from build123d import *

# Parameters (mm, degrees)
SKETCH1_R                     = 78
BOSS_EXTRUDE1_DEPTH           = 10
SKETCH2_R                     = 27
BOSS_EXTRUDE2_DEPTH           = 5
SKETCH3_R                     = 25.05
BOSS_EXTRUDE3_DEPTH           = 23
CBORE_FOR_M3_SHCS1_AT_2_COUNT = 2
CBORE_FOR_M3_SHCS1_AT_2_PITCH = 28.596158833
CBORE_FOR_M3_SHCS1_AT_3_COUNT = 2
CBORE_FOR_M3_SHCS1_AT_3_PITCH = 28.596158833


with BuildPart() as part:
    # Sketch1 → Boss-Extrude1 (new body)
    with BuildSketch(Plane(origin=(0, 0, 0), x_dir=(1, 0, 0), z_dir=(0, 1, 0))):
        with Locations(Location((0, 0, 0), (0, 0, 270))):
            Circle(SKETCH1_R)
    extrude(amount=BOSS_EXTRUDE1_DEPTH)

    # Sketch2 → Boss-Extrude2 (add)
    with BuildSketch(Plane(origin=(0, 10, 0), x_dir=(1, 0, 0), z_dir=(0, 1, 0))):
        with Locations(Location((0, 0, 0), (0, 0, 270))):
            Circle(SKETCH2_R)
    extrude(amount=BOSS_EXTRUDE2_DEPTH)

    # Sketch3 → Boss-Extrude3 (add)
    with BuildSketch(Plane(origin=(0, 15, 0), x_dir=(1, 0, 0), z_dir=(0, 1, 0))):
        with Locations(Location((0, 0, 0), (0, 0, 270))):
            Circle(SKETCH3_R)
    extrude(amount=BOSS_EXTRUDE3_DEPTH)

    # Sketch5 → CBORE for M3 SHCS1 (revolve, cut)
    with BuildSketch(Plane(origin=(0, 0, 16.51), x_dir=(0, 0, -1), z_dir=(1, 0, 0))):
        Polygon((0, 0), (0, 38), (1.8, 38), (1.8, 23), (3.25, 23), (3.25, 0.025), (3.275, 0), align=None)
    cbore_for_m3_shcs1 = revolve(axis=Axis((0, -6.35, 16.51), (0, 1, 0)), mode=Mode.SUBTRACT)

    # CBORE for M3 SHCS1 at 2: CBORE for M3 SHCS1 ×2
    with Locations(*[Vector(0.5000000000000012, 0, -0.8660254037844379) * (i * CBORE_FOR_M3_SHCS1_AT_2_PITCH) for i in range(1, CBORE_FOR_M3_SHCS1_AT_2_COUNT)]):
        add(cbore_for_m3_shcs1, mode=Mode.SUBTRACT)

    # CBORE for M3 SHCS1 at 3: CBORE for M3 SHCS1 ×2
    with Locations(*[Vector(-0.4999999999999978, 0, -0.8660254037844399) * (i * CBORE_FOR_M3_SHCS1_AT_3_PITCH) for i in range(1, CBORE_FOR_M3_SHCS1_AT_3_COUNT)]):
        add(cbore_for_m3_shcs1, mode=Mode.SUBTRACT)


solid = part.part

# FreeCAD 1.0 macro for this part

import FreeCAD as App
import Part
import Sketcher
Q = App.Units.Quantity

doc = App.newDocument("Part")
body = doc.addObject("PartDesign::Body", "Body")

# Sketch on XZ plane
sketch1 = body.newObject("Sketcher::SketchObject", "Sketch")
sketch1.AttachmentSupport = (doc.getObject("XZ_Plane"), [""])
sketch1.MapMode = "FlatFace"
sketch1.addGeometry(Part.Circle(App.Vector(0, 0, 0), App.Vector(0, 0, 1), 78), False)
sketch1.addConstraint([
    Sketcher.Constraint("Coincident", 0, 3, -1, 1),
    Sketcher.Constraint("Diameter", 0, 156.0),
])
pad1 = body.newObject("PartDesign::Pad", "Pad")
pad1.Profile = sketch1
pad1.Length = 10
pad1.Reversed = True

# Sketch on XZ plane
sketch2 = body.newObject("Sketcher::SketchObject", "Sketch001")
sketch2.AttachmentSupport = (doc.getObject("XZ_Plane"), [""])
sketch2.MapMode = "FlatFace"
sketch2.AttachmentOffset = App.Placement(App.Vector(0, 0, -10), App.Rotation())
sketch2.addGeometry(Part.Circle(App.Vector(0, 0, 0), App.Vector(0, 0, 1), 27), False)
sketch2.addConstraint([
    Sketcher.Constraint("Coincident", 0, 3, -1, 1),
    Sketcher.Constraint("Diameter", 0, 54.0),
])
pad2 = body.newObject("PartDesign::Pad", "Pad001")
pad2.Profile = sketch2
pad2.Length = 5
pad2.Reversed = True

# Sketch on XZ plane
sketch3 = body.newObject("Sketcher::SketchObject", "Sketch002")
sketch3.AttachmentSupport = (doc.getObject("XZ_Plane"), [""])
sketch3.MapMode = "FlatFace"
sketch3.AttachmentOffset = App.Placement(App.Vector(0, 0, -15), App.Rotation())
sketch3.addGeometry(Part.Circle(App.Vector(0, 0, 0), App.Vector(0, 0, 1), 25), False)
sketch3.addConstraint([
    Sketcher.Constraint("Coincident", 0, 3, -1, 1),
    Sketcher.Constraint("Diameter", 0, 50.1),
])
pad3 = body.newObject("PartDesign::Pad", "Pad002")
pad3.Profile = sketch3
pad3.Length = 23
pad3.Reversed = True

# Sketch on YZ plane
sketch4 = body.newObject("Sketcher::SketchObject", "Sketch003")
sketch4.AttachmentSupport = (doc.getObject("YZ_Plane"), [""])
sketch4.MapMode = "FlatFace"
sketch4.addGeometry([
    Part.LineSegment(App.Vector(38, 16.51, 0), App.Vector(0, 16.51, 0)),  # 0
    Part.LineSegment(App.Vector(0, 16.51, 0), App.Vector(0, 13.235, 0)),  # 1
    Part.LineSegment(App.Vector(0, 13.235, 0), App.Vector(0.025, 13.26, 0)),  # 2
    Part.LineSegment(App.Vector(0.025, 13.26, 0), App.Vector(23, 13.26, 0)),  # 3
    Part.LineSegment(App.Vector(23, 13.26, 0), App.Vector(23, 14.71, 0)),  # 4
    Part.LineSegment(App.Vector(23, 14.71, 0), App.Vector(38, 14.71, 0)),  # 5
    Part.LineSegment(App.Vector(38, 14.71, 0), App.Vector(38, 16.51, 0)),  # 6
], False)
sketch4.addGeometry(Part.LineSegment(App.Vector(0, 16.51, 0), App.Vector(38, 16.51, 0)), True)  # axis
sketch4.addConstraint([
    Sketcher.Constraint("Coincident", 0, 2, 1, 1),
    Sketcher.Constraint("Coincident", 1, 2, 2, 1),
    Sketcher.Constraint("Coincident", 2, 2, 3, 1),
    Sketcher.Constraint("Coincident", 3, 2, 4, 1),
    Sketcher.Constraint("Coincident", 4, 2, 5, 1),
    Sketcher.Constraint("Coincident", 5, 2, 6, 1),
    Sketcher.Constraint("Coincident", 6, 2, 0, 1),
    Sketcher.Constraint("Horizontal", 0),
    Sketcher.Constraint("Vertical", 1),
    Sketcher.Constraint("Horizontal", 3),
    Sketcher.Constraint("Vertical", 4),
    Sketcher.Constraint("Horizontal", 5),
    Sketcher.Constraint("Vertical", 6),
    Sketcher.Constraint("Horizontal", 7),
    Sketcher.Constraint("Coincident", 7, 1, 0, 2),
    Sketcher.Constraint("PointOnObject", 0, 2, -2),
    Sketcher.Constraint("Vertical", 5, 2, 7, 2),
    Sketcher.Constraint("DistanceX", 0, 2, 0, 1, 38.0),
    Sketcher.Constraint("DistanceX", 5, 1, 5, 2, 15.0),
    Sketcher.Constraint("Angle", 2, Q("45 deg")),
    Sketcher.Constraint("DistanceY", 6, 1, 6, 2, 1.8),
    Sketcher.Constraint("DistanceY", 4, 1, 4, 2, 1.45),
    Sketcher.Constraint("DistanceX", 3, 1, 3, 2, 22.975),
    Sketcher.Constraint("DistanceY", -1, 1, 0, 2, 16.51),
])
groove = body.newObject("PartDesign::Groove", "Groove")
groove.Profile = sketch4
groove.ReferenceAxis = (sketch4, ["Axis0"])
groove.Angle = 360
doc.recompute()

datumline = body.newObject("PartDesign::Line", "DatumLine")
datumline.Placement = App.Placement(App.Vector(0, 0, 0), App.Rotation(App.Vector(0, 0, 1), App.Vector(0.5, 0, -0.866025404)))
linearpattern = body.newObject("PartDesign::LinearPattern", "LinearPattern")
linearpattern.Originals = [groove]
linearpattern.Direction = (datumline, [""])
linearpattern.Mode = "offset"
linearpattern.Offset = 28.596159
linearpattern.Occurrences = 2
body.Tip = linearpattern
doc.recompute()

datumline2 = body.newObject("PartDesign::Line", "DatumLine001")
datumline2.Placement = App.Placement(App.Vector(0, 0, 0), App.Rotation(App.Vector(0, 0, 1), App.Vector(-0.5, 0, -0.866025404)))
linearpattern2 = body.newObject("PartDesign::LinearPattern", "LinearPattern001")
linearpattern2.Originals = [groove]
linearpattern2.Direction = (datumline2, [""])
linearpattern2.Mode = "offset"
linearpattern2.Offset = 28.596159
linearpattern2.Occurrences = 2
body.Tip = linearpattern2

doc.recompute()
